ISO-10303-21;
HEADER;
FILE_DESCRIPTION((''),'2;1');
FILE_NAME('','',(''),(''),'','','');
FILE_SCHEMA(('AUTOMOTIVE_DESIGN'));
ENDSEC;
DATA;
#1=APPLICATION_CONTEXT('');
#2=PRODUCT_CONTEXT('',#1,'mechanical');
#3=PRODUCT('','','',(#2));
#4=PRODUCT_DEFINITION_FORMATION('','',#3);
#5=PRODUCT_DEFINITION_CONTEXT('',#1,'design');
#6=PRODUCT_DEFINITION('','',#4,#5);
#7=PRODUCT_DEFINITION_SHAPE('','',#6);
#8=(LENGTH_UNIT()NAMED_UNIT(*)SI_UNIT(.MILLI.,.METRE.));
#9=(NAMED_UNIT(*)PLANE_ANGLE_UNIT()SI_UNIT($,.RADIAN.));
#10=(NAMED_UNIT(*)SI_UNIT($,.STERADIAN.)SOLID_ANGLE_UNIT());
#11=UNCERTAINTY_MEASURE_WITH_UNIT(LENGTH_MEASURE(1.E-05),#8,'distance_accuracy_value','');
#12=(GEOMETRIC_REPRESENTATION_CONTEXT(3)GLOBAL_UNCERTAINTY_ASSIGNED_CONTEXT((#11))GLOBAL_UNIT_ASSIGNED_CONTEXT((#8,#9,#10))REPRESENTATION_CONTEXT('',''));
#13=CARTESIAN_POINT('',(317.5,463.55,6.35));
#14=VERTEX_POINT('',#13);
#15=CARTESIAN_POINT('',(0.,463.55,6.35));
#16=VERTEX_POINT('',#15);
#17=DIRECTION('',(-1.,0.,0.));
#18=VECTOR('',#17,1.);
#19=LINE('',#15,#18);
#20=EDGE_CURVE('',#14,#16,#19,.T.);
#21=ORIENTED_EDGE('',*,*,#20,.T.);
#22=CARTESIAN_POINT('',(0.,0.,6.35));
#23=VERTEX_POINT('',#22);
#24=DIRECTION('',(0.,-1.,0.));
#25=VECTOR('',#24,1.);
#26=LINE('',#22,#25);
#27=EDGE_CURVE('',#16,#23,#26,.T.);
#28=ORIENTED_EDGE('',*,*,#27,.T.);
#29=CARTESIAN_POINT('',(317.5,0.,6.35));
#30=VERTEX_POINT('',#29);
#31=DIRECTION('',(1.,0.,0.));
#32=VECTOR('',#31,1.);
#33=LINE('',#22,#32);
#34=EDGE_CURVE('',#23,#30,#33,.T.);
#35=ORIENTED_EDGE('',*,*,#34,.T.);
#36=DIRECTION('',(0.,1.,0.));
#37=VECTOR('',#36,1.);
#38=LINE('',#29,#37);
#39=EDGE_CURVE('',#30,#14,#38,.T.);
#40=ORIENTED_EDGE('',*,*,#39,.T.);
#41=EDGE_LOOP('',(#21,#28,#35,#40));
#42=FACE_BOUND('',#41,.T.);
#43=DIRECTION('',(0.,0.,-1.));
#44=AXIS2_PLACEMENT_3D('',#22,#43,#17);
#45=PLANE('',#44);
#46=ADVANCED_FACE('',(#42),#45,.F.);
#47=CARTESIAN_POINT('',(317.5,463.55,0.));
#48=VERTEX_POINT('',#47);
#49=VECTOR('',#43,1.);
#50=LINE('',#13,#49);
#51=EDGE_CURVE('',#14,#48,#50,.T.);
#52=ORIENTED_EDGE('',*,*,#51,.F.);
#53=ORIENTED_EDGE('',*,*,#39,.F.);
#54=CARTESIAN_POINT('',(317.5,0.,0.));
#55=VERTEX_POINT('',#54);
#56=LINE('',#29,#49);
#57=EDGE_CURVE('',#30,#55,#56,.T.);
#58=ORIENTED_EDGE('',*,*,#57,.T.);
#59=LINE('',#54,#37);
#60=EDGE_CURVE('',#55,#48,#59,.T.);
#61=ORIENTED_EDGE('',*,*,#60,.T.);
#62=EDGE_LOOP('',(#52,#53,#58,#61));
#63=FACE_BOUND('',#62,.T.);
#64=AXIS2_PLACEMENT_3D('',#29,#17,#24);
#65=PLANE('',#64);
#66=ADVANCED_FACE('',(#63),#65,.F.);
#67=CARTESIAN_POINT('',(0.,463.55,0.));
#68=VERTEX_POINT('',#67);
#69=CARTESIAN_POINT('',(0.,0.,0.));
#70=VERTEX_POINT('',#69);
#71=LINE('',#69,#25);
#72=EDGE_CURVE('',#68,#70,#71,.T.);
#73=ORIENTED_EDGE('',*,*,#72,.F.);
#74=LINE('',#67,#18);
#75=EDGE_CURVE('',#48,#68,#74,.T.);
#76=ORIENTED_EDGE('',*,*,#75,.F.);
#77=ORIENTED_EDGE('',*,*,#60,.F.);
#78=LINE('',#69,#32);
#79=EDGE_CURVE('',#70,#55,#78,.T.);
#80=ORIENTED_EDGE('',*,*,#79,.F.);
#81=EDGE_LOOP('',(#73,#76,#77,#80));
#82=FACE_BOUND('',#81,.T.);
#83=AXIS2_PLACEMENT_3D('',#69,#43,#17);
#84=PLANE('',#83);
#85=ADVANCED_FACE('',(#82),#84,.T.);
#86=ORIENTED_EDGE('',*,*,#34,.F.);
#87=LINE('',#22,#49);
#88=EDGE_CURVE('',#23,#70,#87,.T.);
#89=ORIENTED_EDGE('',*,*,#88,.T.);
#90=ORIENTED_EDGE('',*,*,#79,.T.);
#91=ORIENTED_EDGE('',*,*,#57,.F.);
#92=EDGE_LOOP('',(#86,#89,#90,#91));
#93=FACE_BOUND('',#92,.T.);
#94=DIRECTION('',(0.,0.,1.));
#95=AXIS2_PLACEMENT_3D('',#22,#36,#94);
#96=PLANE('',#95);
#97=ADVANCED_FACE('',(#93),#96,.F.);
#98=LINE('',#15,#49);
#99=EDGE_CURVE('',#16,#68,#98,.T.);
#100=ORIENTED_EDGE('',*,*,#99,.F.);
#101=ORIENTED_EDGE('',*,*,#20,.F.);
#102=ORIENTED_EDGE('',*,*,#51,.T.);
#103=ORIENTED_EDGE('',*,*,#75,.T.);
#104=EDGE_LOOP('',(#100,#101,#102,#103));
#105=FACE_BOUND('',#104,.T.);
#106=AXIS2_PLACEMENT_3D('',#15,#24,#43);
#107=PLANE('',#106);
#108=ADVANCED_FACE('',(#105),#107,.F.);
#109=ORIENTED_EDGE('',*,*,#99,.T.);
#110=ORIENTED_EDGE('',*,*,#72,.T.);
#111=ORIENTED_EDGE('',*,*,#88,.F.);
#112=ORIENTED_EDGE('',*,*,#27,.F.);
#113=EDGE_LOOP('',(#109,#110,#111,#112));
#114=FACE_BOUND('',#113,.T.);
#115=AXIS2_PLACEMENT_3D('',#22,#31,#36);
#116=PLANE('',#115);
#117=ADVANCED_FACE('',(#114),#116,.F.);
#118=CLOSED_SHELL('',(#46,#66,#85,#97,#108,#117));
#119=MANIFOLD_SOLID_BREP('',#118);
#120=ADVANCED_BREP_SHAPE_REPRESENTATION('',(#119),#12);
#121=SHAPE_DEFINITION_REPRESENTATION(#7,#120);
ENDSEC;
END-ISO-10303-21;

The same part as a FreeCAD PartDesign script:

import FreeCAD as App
import Part
import Sketcher
from FreeCAD import Vector
Q = App.Units.Quantity


def add_polygon(sketch, points):
    """Adds a closed chain of lines whose ends are joined by coincident constraints."""
    first, n = sketch.GeometryCount, len(points)
    for a, b in zip(points, points[1:] + points[:1]):
        sketch.addGeometry(Part.LineSegment(App.Vector(*a, 0), App.Vector(*b, 0)), False)
    for i in range(n):
        sketch.addConstraint(Sketcher.Constraint("Coincident", first + i, 2, first + (i + 1) % n, 1))

doc = App.newDocument("Part")
params = doc.addObject("Spreadsheet::Sheet", "Params")
for row, (alias, value) in enumerate([
    ("sketch1_width", "12.5 in"),
    ("sketch1_height", "18.25 in"),
    ("pad1_length", "0.25 in"),
], start=1):
    params.set(f"A{row}", alias)
    params.set(f"B{row}", "=" + value)
    params.setAlias(f"B{row}", alias)

body = doc.addObject("PartDesign::Body", "Body")

sketch1 = body.newObject("Sketcher::SketchObject", "Sketch")
sketch1.AttachmentSupport = (doc.getObject("XY_Plane"), [""])
sketch1.MapMode = "FlatFace"
add_polygon(sketch1, [(0, 464), (0, 0), (318, 0), (318, 464)])
sketch1.addConstraint([
    Sketcher.Constraint("Vertical", 0),
    Sketcher.Constraint("Horizontal", 1),
    Sketcher.Constraint("Vertical", 2),
    Sketcher.Constraint("Horizontal", 3),
    Sketcher.Constraint("Coincident", 0, 2, -1, 1),
    Sketcher.Constraint("DistanceX", 1, 1, 1, 2, Q("12.5 in")),
    Sketcher.Constraint("DistanceY", 0, 2, 0, 1, Q("18.25 in")),
])
sketch1.setExpression("Constraints[9]", "Params.sketch1_width")
sketch1.setExpression("Constraints[10]", "Params.sketch1_height")
pad1 = body.newObject("PartDesign::Pad", "Pad")
pad1.Profile = sketch1
pad1.setExpression("Length", "Params.pad1_length")

doc.recompute()
